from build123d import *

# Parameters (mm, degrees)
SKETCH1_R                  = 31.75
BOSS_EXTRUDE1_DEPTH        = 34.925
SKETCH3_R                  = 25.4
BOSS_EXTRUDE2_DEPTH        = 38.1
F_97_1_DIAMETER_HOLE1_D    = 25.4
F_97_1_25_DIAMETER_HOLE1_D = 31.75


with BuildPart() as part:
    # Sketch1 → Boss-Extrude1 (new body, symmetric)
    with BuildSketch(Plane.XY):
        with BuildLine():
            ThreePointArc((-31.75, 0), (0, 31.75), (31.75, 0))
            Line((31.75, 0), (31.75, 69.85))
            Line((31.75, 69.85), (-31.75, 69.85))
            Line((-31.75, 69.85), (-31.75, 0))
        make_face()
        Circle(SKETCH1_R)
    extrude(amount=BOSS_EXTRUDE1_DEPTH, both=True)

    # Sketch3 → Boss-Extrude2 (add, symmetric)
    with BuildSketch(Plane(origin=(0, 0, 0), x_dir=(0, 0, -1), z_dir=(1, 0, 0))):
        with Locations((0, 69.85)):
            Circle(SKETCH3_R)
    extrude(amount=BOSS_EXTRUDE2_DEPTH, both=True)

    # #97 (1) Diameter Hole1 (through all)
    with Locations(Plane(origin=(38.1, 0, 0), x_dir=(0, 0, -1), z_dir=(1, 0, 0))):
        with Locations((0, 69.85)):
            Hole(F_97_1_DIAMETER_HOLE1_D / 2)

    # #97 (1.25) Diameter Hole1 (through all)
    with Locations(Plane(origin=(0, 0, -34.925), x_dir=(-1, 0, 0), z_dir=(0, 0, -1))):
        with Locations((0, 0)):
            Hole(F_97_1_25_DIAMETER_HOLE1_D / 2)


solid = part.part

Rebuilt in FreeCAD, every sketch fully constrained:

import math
import FreeCAD as App
import Part
import Sketcher

V = App.Vector
Q = App.Units.Quantity

doc = App.newDocument("Part")
body = doc.addObject("PartDesign::Body", "Body")

sketch1 = body.newObject("Sketcher::SketchObject", "Sketch")
sketch1.AttachmentSupport = (doc.getObject("XY_Plane"), [""])
sketch1.MapMode = "FlatFace"
sketch1.addGeometry([
    Part.LineSegment(V(31.75, 0, 0), V(31.75, 69.85, 0)),
    Part.LineSegment(V(31.75, 69.85, 0), V(-31.75, 69.85, 0)),
    Part.LineSegment(V(-31.75, 69.85, 0), V(-31.75, 0, 0)),
    Part.ArcOfCircle(Part.Circle(V(0, 0, 0), V(0, 0, 1), 31.75), math.radians(180), math.radians(360)),
], False)
sketch1.addConstraint([
    Sketcher.Constraint("Coincident", 0, 2, 1, 1),
    Sketcher.Constraint("Coincident", 1, 2, 2, 1),
    Sketcher.Constraint("Tangent", 2, 2, 3, 1),
    Sketcher.Constraint("Tangent", 3, 2, 0, 1),
    Sketcher.Constraint("Vertical", 0),
    Sketcher.Constraint("Horizontal", 1),
    Sketcher.Constraint("Vertical", 2),
    Sketcher.Constraint("Coincident", 3, 3, -1, 1),
    Sketcher.Constraint("Radius", 3, Q("1.25 in")),
    Sketcher.Constraint("DistanceY", 0, 1, 0, 2, Q("2.75 in")),
])
pad1 = body.newObject("PartDesign::Pad", "Pad")
pad1.Profile = sketch1
pad1.Length = Q("2.75 in")
pad1.Midplane = True

sketch2 = body.newObject("Sketcher::SketchObject", "Sketch001")
sketch2.AttachmentSupport = (doc.getObject("YZ_Plane"), [""])
sketch2.MapMode = "FlatFace"
sketch2.addGeometry(Part.Circle(V(69.85, 0, 0), V(0, 0, 1), 25.4), False)
sketch2.addConstraint([
    Sketcher.Constraint("PointOnObject", 0, 3, -1),
    Sketcher.Constraint("Diameter", 0, Q("2 in")),
    Sketcher.Constraint("DistanceX", -1, 1, 0, 3, Q("2.75 in")),
])
pad2 = body.newObject("PartDesign::Pad", "Pad001")
pad2.Profile = sketch2
pad2.Length = Q("3 in")
pad2.Midplane = True

sketch3 = body.newObject("Sketcher::SketchObject", "Sketch002")
sketch3.AttachmentSupport = (doc.getObject("YZ_Plane"), [""])
sketch3.MapMode = "FlatFace"
sketch3.AttachmentOffset = App.Placement(V(0, 0, 1.5 * 25.4), App.Rotation())
sketch3.addGeometry(Part.Circle(V(69.85, 0, 0), V(0, 0, 1), 12.7), False)
sketch3.addConstraint([
    Sketcher.Constraint("PointOnObject", 0, 3, -1),
    Sketcher.Constraint("Diameter", 0, Q("1 in")),
    Sketcher.Constraint("DistanceX", -1, 1, 0, 3, Q("2.75 in")),
])
doc.recompute()
hole = body.newObject("PartDesign::Hole", "Hole")
hole.Profile = sketch3
hole.ThreadType = "None"
hole.Diameter = Q("1 in")
hole.DepthType = "ThroughAll"

sketch4 = body.newObject("Sketcher::SketchObject", "Sketch003")
sketch4.AttachmentSupport = (doc.getObject("XY_Plane"), [""])
sketch4.MapMode = "FlatFace"
sketch4.AttachmentOffset = App.Placement(V(0, 0, -1.375 * 25.4), App.Rotation())
sketch4.addGeometry(Part.Circle(V(0, 0, 0), V(0, 0, 1), 15.875), False)
sketch4.addConstraint([
    Sketcher.Constraint("Coincident", 0, 3, -1, 1),
    Sketcher.Constraint("Diameter", 0, Q("1.25 in")),
])
doc.recompute()
hole2 = body.newObject("PartDesign::Hole", "Hole001")
hole2.Profile = sketch4
hole2.ThreadType = "None"
hole2.Diameter = Q("1.25 in")
hole2.DepthType = "ThroughAll"
hole2.Reversed = True

doc.recompute()
